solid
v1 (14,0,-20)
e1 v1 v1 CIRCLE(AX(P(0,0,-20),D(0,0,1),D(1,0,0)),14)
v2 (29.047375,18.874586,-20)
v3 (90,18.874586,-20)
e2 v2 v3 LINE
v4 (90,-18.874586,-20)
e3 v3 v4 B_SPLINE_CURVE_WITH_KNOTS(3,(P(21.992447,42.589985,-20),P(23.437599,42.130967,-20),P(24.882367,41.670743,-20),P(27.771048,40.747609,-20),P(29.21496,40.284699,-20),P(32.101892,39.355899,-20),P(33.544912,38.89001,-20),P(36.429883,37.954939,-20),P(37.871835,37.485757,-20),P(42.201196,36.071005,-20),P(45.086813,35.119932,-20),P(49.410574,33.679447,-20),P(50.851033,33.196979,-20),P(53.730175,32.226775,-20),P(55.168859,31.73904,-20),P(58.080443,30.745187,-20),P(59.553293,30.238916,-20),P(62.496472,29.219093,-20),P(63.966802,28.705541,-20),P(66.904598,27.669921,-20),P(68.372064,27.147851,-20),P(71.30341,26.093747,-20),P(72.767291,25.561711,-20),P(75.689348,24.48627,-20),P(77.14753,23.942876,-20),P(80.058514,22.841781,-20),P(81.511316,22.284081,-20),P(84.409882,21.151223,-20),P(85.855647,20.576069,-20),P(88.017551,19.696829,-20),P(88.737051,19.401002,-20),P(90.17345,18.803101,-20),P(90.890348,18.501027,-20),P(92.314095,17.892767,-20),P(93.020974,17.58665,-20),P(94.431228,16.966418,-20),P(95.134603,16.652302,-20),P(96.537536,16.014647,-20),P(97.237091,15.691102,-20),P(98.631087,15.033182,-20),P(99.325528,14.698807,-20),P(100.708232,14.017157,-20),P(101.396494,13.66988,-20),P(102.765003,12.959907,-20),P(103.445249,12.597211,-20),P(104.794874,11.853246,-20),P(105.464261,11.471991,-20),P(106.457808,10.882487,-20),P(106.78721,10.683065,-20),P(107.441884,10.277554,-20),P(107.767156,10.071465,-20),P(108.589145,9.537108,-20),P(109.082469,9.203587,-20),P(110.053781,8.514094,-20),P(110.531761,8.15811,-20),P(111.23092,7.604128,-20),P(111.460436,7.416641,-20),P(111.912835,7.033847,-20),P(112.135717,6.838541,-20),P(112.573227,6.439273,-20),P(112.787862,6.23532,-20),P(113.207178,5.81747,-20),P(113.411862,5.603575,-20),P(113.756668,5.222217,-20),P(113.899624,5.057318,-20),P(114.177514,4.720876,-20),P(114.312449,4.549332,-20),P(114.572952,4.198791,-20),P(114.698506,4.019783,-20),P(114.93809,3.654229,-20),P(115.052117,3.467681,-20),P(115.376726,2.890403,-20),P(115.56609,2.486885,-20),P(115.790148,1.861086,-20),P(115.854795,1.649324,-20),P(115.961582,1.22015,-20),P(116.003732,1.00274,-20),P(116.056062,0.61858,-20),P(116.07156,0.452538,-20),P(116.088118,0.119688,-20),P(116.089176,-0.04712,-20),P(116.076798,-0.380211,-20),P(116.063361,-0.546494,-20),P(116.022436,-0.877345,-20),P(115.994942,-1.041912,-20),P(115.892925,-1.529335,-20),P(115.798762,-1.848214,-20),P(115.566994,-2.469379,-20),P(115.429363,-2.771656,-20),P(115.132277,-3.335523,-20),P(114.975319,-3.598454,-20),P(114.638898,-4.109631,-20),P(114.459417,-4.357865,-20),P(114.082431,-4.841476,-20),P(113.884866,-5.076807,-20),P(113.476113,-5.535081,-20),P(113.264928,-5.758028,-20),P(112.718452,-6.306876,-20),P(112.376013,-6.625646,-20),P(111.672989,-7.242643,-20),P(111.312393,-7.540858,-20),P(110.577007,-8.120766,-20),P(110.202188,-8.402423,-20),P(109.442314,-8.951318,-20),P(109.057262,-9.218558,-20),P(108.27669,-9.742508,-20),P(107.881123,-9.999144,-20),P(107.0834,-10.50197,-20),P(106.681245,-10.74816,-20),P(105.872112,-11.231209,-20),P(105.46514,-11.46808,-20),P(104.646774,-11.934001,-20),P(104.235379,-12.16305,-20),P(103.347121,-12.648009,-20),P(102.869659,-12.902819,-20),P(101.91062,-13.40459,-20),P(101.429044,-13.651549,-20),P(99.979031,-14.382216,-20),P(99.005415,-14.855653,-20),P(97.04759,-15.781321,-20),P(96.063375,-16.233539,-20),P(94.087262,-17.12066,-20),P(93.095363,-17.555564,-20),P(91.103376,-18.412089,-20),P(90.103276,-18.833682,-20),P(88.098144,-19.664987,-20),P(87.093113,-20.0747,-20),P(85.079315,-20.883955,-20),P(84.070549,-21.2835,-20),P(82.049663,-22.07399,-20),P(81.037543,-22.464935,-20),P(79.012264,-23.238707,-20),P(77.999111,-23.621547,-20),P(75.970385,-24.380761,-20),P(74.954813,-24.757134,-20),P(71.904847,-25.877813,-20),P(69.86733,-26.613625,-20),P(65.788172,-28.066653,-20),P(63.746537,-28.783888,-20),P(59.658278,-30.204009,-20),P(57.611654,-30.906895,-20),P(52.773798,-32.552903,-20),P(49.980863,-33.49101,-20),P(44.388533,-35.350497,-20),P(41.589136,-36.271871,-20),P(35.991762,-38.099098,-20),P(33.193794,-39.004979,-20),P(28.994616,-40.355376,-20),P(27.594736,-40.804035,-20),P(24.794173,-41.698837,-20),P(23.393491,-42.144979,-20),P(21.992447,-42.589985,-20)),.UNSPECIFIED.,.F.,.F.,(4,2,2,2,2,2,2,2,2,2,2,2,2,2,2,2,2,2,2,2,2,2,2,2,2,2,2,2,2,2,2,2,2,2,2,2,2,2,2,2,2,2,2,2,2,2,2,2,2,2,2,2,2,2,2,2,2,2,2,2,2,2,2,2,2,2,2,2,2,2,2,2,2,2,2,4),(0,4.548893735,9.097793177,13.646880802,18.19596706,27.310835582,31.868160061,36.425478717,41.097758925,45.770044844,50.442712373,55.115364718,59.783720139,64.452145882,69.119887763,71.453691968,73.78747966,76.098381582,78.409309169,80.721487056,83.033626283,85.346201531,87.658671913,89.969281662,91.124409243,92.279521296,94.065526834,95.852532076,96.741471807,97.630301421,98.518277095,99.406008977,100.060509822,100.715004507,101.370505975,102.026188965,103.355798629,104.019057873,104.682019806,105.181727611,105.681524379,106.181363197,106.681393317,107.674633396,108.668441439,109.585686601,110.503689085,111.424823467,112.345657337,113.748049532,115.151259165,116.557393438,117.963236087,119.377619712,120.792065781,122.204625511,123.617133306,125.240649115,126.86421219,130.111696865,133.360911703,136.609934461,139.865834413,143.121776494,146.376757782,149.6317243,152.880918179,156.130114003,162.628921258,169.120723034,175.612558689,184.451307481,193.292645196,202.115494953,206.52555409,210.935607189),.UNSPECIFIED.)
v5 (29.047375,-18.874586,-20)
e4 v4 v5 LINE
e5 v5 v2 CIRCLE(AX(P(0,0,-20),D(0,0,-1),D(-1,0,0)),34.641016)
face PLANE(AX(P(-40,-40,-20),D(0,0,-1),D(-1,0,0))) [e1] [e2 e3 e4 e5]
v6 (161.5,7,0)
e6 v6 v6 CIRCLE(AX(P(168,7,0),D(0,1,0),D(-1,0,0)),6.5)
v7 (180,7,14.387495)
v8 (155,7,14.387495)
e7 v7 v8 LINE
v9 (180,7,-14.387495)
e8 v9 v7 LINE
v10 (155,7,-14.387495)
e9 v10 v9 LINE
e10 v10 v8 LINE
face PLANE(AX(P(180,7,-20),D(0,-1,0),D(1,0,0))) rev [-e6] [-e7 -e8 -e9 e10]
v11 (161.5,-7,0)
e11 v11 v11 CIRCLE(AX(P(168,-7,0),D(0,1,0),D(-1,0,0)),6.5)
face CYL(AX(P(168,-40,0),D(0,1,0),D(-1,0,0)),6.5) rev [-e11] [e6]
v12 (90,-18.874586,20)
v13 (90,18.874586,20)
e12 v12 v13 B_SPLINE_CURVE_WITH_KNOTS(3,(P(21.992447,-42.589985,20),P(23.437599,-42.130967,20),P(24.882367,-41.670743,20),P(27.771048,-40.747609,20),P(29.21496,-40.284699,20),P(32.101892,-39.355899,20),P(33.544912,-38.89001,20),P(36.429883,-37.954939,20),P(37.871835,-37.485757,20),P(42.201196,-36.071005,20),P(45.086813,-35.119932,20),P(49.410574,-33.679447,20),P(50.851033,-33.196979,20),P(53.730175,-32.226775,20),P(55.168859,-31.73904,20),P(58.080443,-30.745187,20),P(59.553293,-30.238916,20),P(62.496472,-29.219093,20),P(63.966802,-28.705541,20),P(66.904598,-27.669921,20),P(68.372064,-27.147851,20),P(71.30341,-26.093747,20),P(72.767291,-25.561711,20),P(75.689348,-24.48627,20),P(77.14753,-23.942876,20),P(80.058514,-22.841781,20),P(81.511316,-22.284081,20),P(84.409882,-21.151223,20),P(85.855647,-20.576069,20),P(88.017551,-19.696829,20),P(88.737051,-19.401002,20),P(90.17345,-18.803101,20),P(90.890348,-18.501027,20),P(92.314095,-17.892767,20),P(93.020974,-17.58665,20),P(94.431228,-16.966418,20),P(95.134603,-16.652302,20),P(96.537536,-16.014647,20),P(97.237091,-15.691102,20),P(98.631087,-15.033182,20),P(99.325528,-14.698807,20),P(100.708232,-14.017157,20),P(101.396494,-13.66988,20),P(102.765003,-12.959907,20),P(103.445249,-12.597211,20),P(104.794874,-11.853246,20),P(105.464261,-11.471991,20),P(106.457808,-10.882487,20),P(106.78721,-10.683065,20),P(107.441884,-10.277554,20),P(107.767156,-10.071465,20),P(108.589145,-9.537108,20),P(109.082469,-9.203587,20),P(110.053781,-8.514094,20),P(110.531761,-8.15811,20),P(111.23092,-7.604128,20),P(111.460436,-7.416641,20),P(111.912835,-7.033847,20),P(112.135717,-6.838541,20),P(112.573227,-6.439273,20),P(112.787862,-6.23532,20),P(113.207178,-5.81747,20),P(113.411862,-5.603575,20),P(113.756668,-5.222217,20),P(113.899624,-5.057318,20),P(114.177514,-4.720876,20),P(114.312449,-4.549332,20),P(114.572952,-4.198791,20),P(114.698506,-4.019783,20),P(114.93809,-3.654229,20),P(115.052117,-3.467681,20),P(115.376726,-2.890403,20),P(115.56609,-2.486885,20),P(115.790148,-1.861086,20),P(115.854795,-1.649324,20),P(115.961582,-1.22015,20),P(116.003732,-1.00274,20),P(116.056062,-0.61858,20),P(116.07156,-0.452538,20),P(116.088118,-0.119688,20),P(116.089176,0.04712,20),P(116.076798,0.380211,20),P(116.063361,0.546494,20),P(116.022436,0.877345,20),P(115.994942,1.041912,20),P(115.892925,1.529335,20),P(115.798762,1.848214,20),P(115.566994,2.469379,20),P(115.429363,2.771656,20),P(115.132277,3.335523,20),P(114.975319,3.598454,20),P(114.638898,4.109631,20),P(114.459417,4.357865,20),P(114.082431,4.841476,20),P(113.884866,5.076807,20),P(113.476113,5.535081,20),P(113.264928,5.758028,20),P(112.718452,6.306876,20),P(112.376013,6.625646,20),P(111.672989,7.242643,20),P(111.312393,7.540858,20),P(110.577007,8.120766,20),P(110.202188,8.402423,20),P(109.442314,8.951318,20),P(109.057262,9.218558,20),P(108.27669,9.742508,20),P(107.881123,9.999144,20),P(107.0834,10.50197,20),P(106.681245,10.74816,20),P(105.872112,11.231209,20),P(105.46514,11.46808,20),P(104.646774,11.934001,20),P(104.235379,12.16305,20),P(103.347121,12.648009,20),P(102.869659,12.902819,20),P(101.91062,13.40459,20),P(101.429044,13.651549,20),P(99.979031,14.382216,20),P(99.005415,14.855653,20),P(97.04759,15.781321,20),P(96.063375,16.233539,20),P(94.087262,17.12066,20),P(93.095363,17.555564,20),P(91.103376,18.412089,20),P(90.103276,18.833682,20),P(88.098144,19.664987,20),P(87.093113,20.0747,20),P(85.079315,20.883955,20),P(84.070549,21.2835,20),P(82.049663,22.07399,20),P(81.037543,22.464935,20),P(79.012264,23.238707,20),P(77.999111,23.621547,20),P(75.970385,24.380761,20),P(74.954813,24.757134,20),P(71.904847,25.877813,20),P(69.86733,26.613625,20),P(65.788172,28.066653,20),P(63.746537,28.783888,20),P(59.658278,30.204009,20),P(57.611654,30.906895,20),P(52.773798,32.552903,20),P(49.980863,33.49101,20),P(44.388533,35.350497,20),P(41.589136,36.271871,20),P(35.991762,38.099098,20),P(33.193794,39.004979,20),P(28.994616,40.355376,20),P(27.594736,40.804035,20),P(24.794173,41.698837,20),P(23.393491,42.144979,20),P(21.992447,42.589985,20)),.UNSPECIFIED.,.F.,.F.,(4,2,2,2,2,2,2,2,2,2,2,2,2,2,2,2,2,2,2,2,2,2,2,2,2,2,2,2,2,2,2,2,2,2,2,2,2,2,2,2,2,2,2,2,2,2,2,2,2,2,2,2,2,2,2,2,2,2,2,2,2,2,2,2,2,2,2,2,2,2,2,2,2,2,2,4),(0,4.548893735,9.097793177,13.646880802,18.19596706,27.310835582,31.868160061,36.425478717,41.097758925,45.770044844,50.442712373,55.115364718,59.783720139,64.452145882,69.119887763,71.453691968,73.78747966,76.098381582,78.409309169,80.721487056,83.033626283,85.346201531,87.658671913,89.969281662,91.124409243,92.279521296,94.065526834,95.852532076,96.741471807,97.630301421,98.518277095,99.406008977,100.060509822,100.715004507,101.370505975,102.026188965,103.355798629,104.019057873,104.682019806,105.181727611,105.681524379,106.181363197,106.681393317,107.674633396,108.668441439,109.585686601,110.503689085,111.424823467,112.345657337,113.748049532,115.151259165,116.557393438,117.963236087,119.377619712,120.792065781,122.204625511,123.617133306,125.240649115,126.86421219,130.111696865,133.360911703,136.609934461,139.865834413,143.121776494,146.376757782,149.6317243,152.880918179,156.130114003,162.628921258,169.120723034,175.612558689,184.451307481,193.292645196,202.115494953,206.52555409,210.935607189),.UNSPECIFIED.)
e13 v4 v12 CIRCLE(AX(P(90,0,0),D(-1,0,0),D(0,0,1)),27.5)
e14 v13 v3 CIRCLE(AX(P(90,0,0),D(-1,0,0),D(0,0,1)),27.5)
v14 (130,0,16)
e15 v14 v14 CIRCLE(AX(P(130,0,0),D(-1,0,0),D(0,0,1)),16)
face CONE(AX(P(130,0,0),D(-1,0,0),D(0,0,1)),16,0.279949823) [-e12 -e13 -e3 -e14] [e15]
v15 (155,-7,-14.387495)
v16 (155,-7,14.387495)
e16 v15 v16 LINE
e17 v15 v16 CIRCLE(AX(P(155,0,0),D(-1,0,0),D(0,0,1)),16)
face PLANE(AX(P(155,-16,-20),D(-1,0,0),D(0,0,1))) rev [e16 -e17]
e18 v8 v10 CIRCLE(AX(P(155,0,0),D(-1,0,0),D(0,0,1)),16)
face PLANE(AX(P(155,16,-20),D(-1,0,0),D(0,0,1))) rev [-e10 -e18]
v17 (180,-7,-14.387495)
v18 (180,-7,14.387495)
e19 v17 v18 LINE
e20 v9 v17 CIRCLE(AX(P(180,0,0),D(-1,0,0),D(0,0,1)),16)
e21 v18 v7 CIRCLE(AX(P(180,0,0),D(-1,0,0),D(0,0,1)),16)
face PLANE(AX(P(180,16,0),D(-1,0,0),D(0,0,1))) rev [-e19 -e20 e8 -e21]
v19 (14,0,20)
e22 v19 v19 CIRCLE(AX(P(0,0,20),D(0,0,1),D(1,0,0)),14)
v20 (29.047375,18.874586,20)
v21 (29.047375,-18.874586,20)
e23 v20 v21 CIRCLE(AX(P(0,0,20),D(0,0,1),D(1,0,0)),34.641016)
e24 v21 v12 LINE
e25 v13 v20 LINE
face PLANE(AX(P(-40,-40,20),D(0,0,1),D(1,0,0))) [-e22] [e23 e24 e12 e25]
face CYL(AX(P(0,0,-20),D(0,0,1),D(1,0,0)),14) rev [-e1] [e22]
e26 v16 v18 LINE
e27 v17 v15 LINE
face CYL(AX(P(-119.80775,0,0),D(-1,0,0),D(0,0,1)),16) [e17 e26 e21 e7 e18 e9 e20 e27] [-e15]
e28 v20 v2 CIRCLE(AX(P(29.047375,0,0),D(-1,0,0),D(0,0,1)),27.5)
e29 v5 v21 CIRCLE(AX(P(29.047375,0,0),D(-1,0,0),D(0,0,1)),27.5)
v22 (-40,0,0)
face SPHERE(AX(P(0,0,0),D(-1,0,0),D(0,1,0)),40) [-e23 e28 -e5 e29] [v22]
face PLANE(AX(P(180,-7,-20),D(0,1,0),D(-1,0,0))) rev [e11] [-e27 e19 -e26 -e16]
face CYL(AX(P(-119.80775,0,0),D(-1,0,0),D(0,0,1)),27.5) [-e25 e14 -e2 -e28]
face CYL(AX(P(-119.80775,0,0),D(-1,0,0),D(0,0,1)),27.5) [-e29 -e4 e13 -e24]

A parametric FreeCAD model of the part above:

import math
import FreeCAD as App
import Part
import Sketcher
from FreeCAD import Vector
Q = App.Units.Quantity

doc = App.newDocument("Part")
body = doc.addObject("PartDesign::Body", "Body")

# Sketch on XY plane
sketch1 = doc.addObject("Sketcher::SketchObject", "Sketch")
body.addObject(sketch1)
sketch1.AttachmentSupport = (doc.XY_Plane, [""])
sketch1.MapMode = "FlatFace"
sketch1.addGeometry(Part.LineSegment(Vector(90, 28, 0), Vector(29, 28, 0)), False)
sketch1.addGeometry(Part.ArcOfCircle(Part.Circle(Vector(0, 0, 0), Vector(0, 0, 1), 40), math.radians(43), math.radians(180)), False)
sketch1.addGeometry(Part.LineSegment(Vector(-40, 0, 0), Vector(180, 0, 0)), False)
sketch1.addGeometry(Part.LineSegment(Vector(180, 0, 0), Vector(180, 16, 0)), False)
sketch1.addGeometry(Part.LineSegment(Vector(180, 16, 0), Vector(130, 16, 0)), False)
sketch1.addGeometry(Part.LineSegment(Vector(130, 16, 0), Vector(90, 28, 0)), False)
sketch1.addConstraint(Sketcher.Constraint("Coincident", 0, 2, 1, 1))
sketch1.addConstraint(Sketcher.Constraint("Coincident", 1, 2, 2, 1))
sketch1.addConstraint(Sketcher.Constraint("Coincident", 2, 2, 3, 1))
sketch1.addConstraint(Sketcher.Constraint("Coincident", 3, 2, 4, 1))
sketch1.addConstraint(Sketcher.Constraint("Coincident", 4, 2, 5, 1))
sketch1.addConstraint(Sketcher.Constraint("Coincident", 5, 2, 0, 1))
sketch1.addConstraint(Sketcher.Constraint("Horizontal", 0))
sketch1.addConstraint(Sketcher.Constraint("Horizontal", 2))
sketch1.addConstraint(Sketcher.Constraint("Vertical", 3))
sketch1.addConstraint(Sketcher.Constraint("Horizontal", 4))
sketch1.addConstraint(Sketcher.Constraint("Coincident", 1, 3, -1, 1))
sketch1.addConstraint(Sketcher.Constraint("PointOnObject", 1, 2, -1))
sketch1.addConstraint(Sketcher.Constraint("Radius", 1, Q("40 mm")))
sketch1.addConstraint(Sketcher.Constraint("DistanceX", 2, 1, 2, 2, Q("220 mm")))
sketch1.addConstraint(Sketcher.Constraint("DistanceX", 4, 2, 4, 1, Q("50 mm")))
sketch1.addConstraint(Sketcher.Constraint("DistanceY", 3, 1, 3, 2, Q("16 mm")))
sketch1.addConstraint(Sketcher.Constraint("DistanceX", -1, 1, 5, 2, Q("90 mm")))
sketch1.addConstraint(Sketcher.Constraint("DistanceY", -1, 1, 0, 2, Q("27.5 mm")))
revolution = doc.addObject("PartDesign::Revolution", "Revolution")
body.addObject(revolution)
revolution.Profile = sketch1
revolution.ReferenceAxis = (sketch1, ["H_Axis"])
revolution.Angle = 360

# Sketch on XZ plane
sketch2 = doc.addObject("Sketcher::SketchObject", "Sketch001")
body.addObject(sketch2)
sketch2.AttachmentSupport = (doc.XZ_Plane, [""])
sketch2.MapMode = "FlatFace"
sketch2.addGeometry(Part.LineSegment(Vector(-66, -66, 0), Vector(-66, 66, 0)), False)
sketch2.addGeometry(Part.LineSegment(Vector(-66, 66, 0), Vector(206, 66, 0)), False)
sketch2.addGeometry(Part.LineSegment(Vector(206, 66, 0), Vector(206, -66, 0)), False)
sketch2.addGeometry(Part.LineSegment(Vector(206, -66, 0), Vector(-66, -66, 0)), False)
sketch2.addGeometry(Part.LineSegment(Vector(180, 20, 0), Vector(-40, 20, 0)), False)
sketch2.addGeometry(Part.LineSegment(Vector(-40, 20, 0), Vector(-40, -20, 0)), False)
sketch2.addGeometry(Part.LineSegment(Vector(-40, -20, 0), Vector(180, -20, 0)), False)
sketch2.addGeometry(Part.LineSegment(Vector(180, -20, 0), Vector(180, 20, 0)), False)
sketch2.addConstraint(Sketcher.Constraint("Coincident", 0, 2, 1, 1))
sketch2.addConstraint(Sketcher.Constraint("Coincident", 1, 2, 2, 1))
sketch2.addConstraint(Sketcher.Constraint("Coincident", 2, 2, 3, 1))
sketch2.addConstraint(Sketcher.Constraint("Coincident", 3, 2, 0, 1))
sketch2.addConstraint(Sketcher.Constraint("Coincident", 4, 2, 5, 1))
sketch2.addConstraint(Sketcher.Constraint("Coincident", 5, 2, 6, 1))
sketch2.addConstraint(Sketcher.Constraint("Coincident", 6, 2, 7, 1))
sketch2.addConstraint(Sketcher.Constraint("Coincident", 7, 2, 4, 1))
sketch2.addConstraint(Sketcher.Constraint("Vertical", 0))
sketch2.addConstraint(Sketcher.Constraint("Horizontal", 1))
sketch2.addConstraint(Sketcher.Constraint("Vertical", 2))
sketch2.addConstraint(Sketcher.Constraint("Horizontal", 3))
sketch2.addConstraint(Sketcher.Constraint("Horizontal", 4))
sketch2.addConstraint(Sketcher.Constraint("Vertical", 5))
sketch2.addConstraint(Sketcher.Constraint("Horizontal", 6))
sketch2.addConstraint(Sketcher.Constraint("Vertical", 7))
sketch2.addConstraint(Sketcher.Constraint("DistanceX", 4, 2, 4, 1, Q("220 mm")))
sketch2.addConstraint(Sketcher.Constraint("DistanceY", 5, 2, 5, 1, Q("40 mm")))
sketch2.addConstraint(Sketcher.Constraint("DistanceX", 4, 2, -1, 1, Q("40 mm")))
sketch2.addConstraint(Sketcher.Constraint("DistanceY", -1, 1, 4, 2, Q("20 mm")))
sketch2.addConstraint(Sketcher.Constraint("DistanceX", 1, 1, 1, 2, Q("271.478 mm")))
sketch2.addConstraint(Sketcher.Constraint("DistanceY", 0, 1, 0, 2, Q("131.478 mm")))
sketch2.addConstraint(Sketcher.Constraint("DistanceX", 0, 2, -1, 1, Q("65.739 mm")))
sketch2.addConstraint(Sketcher.Constraint("DistanceY", -1, 1, 0, 2, Q("65.739 mm")))
pocket1 = doc.addObject("PartDesign::Pocket", "Pocket")
body.addObject(pocket1)
pocket1.Profile = sketch2
pocket1.Type = "ThroughAll"
pocket1.Midplane = True

# Sketch on XY plane
sketch3 = doc.addObject("Sketcher::SketchObject", "Sketch002")
body.addObject(sketch3)
sketch3.AttachmentSupport = (doc.XY_Plane, [""])
sketch3.MapMode = "FlatFace"
sketch3.AttachmentOffset = App.Placement(Vector(0, 0, 20), App.Rotation())
sketch3.addGeometry(Part.Circle(Vector(0, 0, 0), Vector(0, 0, 1), 14), False)
sketch3.addGeometry(Part.LineSegment(Vector(155, 16, 0), Vector(155, 7, 0)), False)
sketch3.addGeometry(Part.LineSegment(Vector(155, 7, 0), Vector(180, 7, 0)), False)
sketch3.addGeometry(Part.LineSegment(Vector(180, 7, 0), Vector(180, 16, 0)), False)
sketch3.addGeometry(Part.LineSegment(Vector(180, 16, 0), Vector(155, 16, 0)), False)
sketch3.addGeometry(Part.LineSegment(Vector(155, -7, 0), Vector(155, -16, 0)), False)
sketch3.addGeometry(Part.LineSegment(Vector(155, -16, 0), Vector(180, -16, 0)), False)
sketch3.addGeometry(Part.LineSegment(Vector(180, -16, 0), Vector(180, -7, 0)), False)
sketch3.addGeometry(Part.LineSegment(Vector(180, -7, 0), Vector(155, -7, 0)), False)
sketch3.addConstraint(Sketcher.Constraint("Coincident", 1, 2, 2, 1))
sketch3.addConstraint(Sketcher.Constraint("Coincident", 2, 2, 3, 1))
sketch3.addConstraint(Sketcher.Constraint("Coincident", 3, 2, 4, 1))
sketch3.addConstraint(Sketcher.Constraint("Coincident", 4, 2, 1, 1))
sketch3.addConstraint(Sketcher.Constraint("Coincident", 5, 2, 6, 1))
sketch3.addConstraint(Sketcher.Constraint("Coincident", 6, 2, 7, 1))
sketch3.addConstraint(Sketcher.Constraint("Coincident", 7, 2, 8, 1))
sketch3.addConstraint(Sketcher.Constraint("Coincident", 8, 2, 5, 1))
sketch3.addConstraint(Sketcher.Constraint("Vertical", 1))
sketch3.addConstraint(Sketcher.Constraint("Horizontal", 2))
sketch3.addConstraint(Sketcher.Constraint("Vertical", 3))
sketch3.addConstraint(Sketcher.Constraint("Horizontal", 4))
sketch3.addConstraint(Sketcher.Constraint("Vertical", 5))
sketch3.addConstraint(Sketcher.Constraint("Horizontal", 6))
sketch3.addConstraint(Sketcher.Constraint("Vertical", 7))
sketch3.addConstraint(Sketcher.Constraint("Horizontal", 8))
sketch3.addConstraint(Sketcher.Constraint("Coincident", 0, 3, -1, 1))
sketch3.addConstraint(Sketcher.Constraint("Symmetric", 4, 2, 5, 2, -1))
sketch3.addConstraint(Sketcher.Constraint("Symmetric", 2, 2, 7, 2, -1))
sketch3.addConstraint(Sketcher.Constraint("Diameter", 0, Q("28 mm")))
sketch3.addConstraint(Sketcher.Constraint("DistanceX", 2, 1, 2, 2, Q("25 mm")))
sketch3.addConstraint(Sketcher.Constraint("DistanceY", 1, 2, 1, 1, Q("9 mm")))
sketch3.addConstraint(Sketcher.Constraint("DistanceX", -1, 1, 1, 2, Q("155 mm")))
sketch3.addConstraint(Sketcher.Constraint("DistanceY", -1, 1, 1, 2, Q("7 mm")))
pocket2 = doc.addObject("PartDesign::Pocket", "Pocket001")
body.addObject(pocket2)
pocket2.Profile = sketch3
pocket2.Type = "ThroughAll"

# Sketch on XZ plane
sketch4 = doc.addObject("Sketcher::SketchObject", "Sketch003")
body.addObject(sketch4)
sketch4.AttachmentSupport = (doc.XZ_Plane, [""])
sketch4.MapMode = "FlatFace"
sketch4.AttachmentOffset = App.Placement(Vector(0, 0, -7), App.Rotation())
sketch4.addGeometry(Part.Circle(Vector(168, 0, 0), Vector(0, 0, 1), 6), False)
sketch4.addConstraint(Sketcher.Constraint("PointOnObject", 0, 3, -1))
sketch4.addConstraint(Sketcher.Constraint("Diameter", 0, Q("13 mm")))
sketch4.addConstraint(Sketcher.Constraint("DistanceX", -1, 1, 0, 3, Q("168 mm")))
pocket3 = doc.addObject("PartDesign::Pocket", "Pocket002")
body.addObject(pocket3)
pocket3.Profile = sketch4
pocket3.Type = "ThroughAll"
pocket3.Reversed = True

doc.recompute()
